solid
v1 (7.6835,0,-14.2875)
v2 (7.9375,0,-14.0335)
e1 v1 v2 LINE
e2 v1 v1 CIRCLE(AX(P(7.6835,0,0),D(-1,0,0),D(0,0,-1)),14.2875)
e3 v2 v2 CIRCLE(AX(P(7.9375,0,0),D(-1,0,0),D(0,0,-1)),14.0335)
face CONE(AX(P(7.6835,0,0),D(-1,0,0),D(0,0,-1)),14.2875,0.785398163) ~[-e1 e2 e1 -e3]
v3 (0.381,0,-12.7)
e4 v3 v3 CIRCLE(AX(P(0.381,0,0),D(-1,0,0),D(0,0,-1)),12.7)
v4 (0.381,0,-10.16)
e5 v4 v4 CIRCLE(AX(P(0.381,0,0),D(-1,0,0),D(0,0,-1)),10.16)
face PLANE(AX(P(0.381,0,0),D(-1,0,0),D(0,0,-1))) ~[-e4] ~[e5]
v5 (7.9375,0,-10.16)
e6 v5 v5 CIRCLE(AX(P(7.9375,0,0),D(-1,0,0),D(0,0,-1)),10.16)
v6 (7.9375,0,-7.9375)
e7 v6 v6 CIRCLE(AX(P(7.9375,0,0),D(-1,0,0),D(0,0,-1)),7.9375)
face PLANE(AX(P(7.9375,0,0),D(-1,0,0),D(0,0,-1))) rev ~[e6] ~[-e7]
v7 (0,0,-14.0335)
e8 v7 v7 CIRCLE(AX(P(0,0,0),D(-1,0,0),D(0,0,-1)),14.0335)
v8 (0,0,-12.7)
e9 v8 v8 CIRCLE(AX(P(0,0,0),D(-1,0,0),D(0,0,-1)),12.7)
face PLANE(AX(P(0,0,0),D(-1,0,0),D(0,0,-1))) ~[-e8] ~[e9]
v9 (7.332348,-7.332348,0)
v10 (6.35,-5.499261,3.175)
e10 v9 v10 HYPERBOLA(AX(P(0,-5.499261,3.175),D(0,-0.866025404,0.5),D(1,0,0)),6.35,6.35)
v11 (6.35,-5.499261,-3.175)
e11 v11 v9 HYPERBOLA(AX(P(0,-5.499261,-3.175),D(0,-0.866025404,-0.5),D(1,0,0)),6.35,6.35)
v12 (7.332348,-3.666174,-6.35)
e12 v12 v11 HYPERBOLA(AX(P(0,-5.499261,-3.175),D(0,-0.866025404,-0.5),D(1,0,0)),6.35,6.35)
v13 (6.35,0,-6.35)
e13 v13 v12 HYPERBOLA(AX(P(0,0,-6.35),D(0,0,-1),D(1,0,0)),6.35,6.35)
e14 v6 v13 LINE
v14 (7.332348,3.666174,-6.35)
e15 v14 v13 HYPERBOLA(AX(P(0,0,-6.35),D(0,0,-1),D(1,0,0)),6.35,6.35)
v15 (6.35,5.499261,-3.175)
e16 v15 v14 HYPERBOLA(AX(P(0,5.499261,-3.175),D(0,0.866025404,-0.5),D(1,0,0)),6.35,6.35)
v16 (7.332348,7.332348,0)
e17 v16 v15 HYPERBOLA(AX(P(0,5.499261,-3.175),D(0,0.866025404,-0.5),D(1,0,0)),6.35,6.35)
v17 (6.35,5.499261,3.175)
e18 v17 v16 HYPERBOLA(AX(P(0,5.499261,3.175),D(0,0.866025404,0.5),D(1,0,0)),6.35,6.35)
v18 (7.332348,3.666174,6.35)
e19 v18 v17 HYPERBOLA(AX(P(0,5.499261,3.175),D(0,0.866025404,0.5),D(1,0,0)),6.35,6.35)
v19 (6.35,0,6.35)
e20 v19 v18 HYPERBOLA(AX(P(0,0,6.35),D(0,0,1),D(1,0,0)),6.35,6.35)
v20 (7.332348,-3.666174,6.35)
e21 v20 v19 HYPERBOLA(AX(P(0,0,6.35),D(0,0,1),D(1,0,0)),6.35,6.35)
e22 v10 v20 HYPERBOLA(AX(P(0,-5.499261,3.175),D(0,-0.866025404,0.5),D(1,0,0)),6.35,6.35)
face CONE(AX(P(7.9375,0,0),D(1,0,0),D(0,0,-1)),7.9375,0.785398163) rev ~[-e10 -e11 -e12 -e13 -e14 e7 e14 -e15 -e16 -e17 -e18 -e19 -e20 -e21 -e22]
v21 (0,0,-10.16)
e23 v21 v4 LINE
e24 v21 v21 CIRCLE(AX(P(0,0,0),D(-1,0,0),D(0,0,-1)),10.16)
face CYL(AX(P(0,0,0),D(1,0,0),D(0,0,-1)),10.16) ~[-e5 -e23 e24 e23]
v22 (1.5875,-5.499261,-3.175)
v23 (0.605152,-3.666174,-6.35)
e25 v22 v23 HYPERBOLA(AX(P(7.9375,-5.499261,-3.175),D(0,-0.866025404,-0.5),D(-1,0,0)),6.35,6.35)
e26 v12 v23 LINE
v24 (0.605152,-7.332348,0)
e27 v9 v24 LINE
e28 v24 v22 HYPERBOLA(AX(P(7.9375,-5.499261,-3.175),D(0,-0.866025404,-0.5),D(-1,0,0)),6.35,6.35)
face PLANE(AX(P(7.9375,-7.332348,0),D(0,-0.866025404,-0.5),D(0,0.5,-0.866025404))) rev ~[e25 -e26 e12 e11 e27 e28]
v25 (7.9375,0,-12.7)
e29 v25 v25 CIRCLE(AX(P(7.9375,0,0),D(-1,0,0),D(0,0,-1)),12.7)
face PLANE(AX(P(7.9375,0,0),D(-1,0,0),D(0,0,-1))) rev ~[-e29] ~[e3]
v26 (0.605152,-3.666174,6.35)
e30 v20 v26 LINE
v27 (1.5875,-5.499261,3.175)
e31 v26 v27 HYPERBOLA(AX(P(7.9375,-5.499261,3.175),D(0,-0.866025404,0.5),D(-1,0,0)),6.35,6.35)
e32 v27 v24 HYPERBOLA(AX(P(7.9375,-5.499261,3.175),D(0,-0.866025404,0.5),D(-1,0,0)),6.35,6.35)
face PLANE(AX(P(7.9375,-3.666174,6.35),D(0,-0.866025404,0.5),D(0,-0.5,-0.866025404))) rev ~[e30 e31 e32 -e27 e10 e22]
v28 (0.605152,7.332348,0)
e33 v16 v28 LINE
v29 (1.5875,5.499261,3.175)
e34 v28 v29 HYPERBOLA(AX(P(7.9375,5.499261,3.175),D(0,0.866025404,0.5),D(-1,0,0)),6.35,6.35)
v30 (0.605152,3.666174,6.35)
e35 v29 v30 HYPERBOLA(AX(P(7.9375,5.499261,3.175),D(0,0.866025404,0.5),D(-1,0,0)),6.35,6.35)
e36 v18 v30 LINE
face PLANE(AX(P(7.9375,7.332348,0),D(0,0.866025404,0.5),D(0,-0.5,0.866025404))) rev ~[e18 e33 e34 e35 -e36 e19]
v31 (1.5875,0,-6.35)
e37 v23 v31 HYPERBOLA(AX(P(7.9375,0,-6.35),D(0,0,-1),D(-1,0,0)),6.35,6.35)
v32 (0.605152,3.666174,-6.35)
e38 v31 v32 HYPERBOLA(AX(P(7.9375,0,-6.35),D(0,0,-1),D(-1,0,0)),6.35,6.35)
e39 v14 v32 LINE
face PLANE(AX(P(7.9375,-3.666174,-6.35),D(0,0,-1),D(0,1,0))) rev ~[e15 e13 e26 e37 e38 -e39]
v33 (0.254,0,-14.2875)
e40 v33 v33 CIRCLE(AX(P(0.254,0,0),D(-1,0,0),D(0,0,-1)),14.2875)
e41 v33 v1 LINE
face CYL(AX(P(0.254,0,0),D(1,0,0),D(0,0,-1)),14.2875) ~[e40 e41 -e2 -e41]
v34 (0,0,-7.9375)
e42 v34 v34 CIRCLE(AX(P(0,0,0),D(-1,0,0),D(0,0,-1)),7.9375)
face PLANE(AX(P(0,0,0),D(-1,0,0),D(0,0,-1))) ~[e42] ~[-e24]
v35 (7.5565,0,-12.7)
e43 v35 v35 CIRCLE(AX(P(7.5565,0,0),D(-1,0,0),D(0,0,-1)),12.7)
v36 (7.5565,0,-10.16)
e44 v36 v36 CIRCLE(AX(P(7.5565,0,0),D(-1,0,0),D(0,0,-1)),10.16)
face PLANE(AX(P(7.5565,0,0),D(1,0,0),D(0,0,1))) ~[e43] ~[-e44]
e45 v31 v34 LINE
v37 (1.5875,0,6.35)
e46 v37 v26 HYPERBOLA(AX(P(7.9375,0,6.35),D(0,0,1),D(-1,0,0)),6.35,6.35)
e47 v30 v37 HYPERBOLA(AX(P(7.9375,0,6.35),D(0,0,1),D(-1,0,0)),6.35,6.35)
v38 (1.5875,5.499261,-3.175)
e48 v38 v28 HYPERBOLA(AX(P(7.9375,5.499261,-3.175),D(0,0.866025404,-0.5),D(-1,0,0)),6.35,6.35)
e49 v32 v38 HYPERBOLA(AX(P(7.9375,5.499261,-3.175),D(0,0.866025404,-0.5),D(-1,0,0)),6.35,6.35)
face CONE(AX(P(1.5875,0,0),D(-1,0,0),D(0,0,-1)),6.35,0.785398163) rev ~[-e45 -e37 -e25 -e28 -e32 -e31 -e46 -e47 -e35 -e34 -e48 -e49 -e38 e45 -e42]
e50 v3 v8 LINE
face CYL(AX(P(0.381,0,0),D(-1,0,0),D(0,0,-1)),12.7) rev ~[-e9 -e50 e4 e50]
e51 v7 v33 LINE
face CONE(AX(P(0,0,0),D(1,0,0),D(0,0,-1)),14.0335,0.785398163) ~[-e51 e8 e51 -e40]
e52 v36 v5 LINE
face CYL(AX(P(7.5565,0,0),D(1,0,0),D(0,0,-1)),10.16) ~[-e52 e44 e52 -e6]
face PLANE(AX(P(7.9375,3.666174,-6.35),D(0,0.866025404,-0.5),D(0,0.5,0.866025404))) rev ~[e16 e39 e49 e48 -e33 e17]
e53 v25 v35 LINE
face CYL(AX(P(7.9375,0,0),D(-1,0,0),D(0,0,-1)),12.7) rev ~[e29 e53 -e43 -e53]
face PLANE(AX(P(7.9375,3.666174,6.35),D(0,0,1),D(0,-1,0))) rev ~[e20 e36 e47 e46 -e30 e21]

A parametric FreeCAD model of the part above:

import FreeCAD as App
import Part
import Sketcher
from FreeCAD import Vector
Q = App.Units.Quantity

doc = App.newDocument("Part")
params = doc.addObject("Spreadsheet::Sheet", "Params")
for row, (alias, value) in enumerate([
    ("sketch1_height", "0.1 in"),
    ("sketch1_width", "0.015 in"),
    ("sketch1_width2", "0.1875 in"),
    ("revolution_angle", "360 deg"),
], start=1):
    params.set(f"A{row}", alias)
    params.set(f"B{row}", "=" + value)
    params.setAlias(f"B{row}", alias)

body = doc.addObject("PartDesign::Body", "Body")

sketch1 = body.newObject("Sketcher::SketchObject", "Sketch")
sketch1.AttachmentSupport = (doc.getObject("XY_Plane"), [""])
sketch1.MapMode = "FlatFace"
sketch1.addGeometry([
    Part.LineSegment(Vector(7.6835, 14.2875, 0), Vector(0.254, 14.2875, 0)),
    Part.LineSegment(Vector(0.254, 14.2875, 0), Vector(0, 14.0335, 0)),
    Part.LineSegment(Vector(0, 14.0335, 0), Vector(0, 12.7, 0)),
    Part.LineSegment(Vector(0, 12.7, 0), Vector(0.381, 12.7, 0)),
    Part.LineSegment(Vector(0.381, 12.7, 0), Vector(0.381, 10.16, 0)),
    Part.LineSegment(Vector(0.381, 10.16, 0), Vector(0, 10.16, 0)),
    Part.LineSegment(Vector(0, 10.16, 0), Vector(0, 7.9375, 0)),
    Part.LineSegment(Vector(0, 7.9375, 0), Vector(1.5875, 6.35, 0)),
    Part.LineSegment(Vector(1.5875, 6.35, 0), Vector(6.35, 6.35, 0)),
    Part.LineSegment(Vector(6.35, 6.35, 0), Vector(7.9375, 7.9375, 0)),
    Part.LineSegment(Vector(7.9375, 7.9375, 0), Vector(7.9375, 10.16, 0)),
    Part.LineSegment(Vector(7.9375, 10.16, 0), Vector(7.5565, 10.16, 0)),
    Part.LineSegment(Vector(7.5565, 10.16, 0), Vector(7.5565, 12.7, 0)),
    Part.LineSegment(Vector(7.5565, 12.7, 0), Vector(7.9375, 12.7, 0)),
    Part.LineSegment(Vector(7.9375, 12.7, 0), Vector(7.9375, 14.0335, 0)),
    Part.LineSegment(Vector(7.9375, 14.0335, 0), Vector(7.6835, 14.2875, 0)),
], False)
sketch1.addConstraint([
    Sketcher.Constraint("Coincident", 0, 2, 1, 1),
    Sketcher.Constraint("Coincident", 1, 2, 2, 1),
    Sketcher.Constraint("Coincident", 2, 2, 3, 1),
    Sketcher.Constraint("Coincident", 3, 2, 4, 1),
    Sketcher.Constraint("Coincident", 4, 2, 5, 1),
    Sketcher.Constraint("Coincident", 5, 2, 6, 1),
    Sketcher.Constraint("Coincident", 6, 2, 7, 1),
    Sketcher.Constraint("Coincident", 7, 2, 8, 1),
    Sketcher.Constraint("Coincident", 8, 2, 9, 1),
    Sketcher.Constraint("Coincident", 9, 2, 10, 1),
    Sketcher.Constraint("Coincident", 10, 2, 11, 1),
    Sketcher.Constraint("Coincident", 11, 2, 12, 1),
    Sketcher.Constraint("Coincident", 12, 2, 13, 1),
    Sketcher.Constraint("Coincident", 13, 2, 14, 1),
    Sketcher.Constraint("Coincident", 14, 2, 15, 1),
    Sketcher.Constraint("Coincident", 15, 2, 0, 1),
    Sketcher.Constraint("Horizontal", 0),
    Sketcher.Constraint("Vertical", 2),
    Sketcher.Constraint("Horizontal", 3),
    Sketcher.Constraint("Vertical", 4),
    Sketcher.Constraint("Horizontal", 5),
    Sketcher.Constraint("Vertical", 6),
    Sketcher.Constraint("Horizontal", 8),
    Sketcher.Constraint("Vertical", 10),
    Sketcher.Constraint("Horizontal", 11),
    Sketcher.Constraint("Vertical", 12),
    Sketcher.Constraint("Horizontal", 13),
    Sketcher.Constraint("Vertical", 14),
    Sketcher.Constraint("PointOnObject", 1, 2, -2),
    Sketcher.Constraint("PointOnObject", 5, 2, -2),
    Sketcher.Constraint("Perpendicular", 1, 7),
    Sketcher.Constraint("Perpendicular", 7, 9),
    Sketcher.Constraint("Perpendicular", 9, 15),
    Sketcher.Constraint("Horizontal", 6, 2, 9, 2),
    Sketcher.Constraint("Horizontal", 5, 2, 10, 2),
    Sketcher.Constraint("Horizontal", 3, 2, 12, 2),
    Sketcher.Constraint("Horizontal", 1, 2, 14, 2),
    Sketcher.Constraint("Vertical", 10, 2, 13, 2),
    Sketcher.Constraint("Equal", 5, 11),
    Sketcher.Constraint("Equal", 7, 9),
    Sketcher.Constraint("DistanceY", 4, 2, 4, 1, Q("0.1 in")),
    Sketcher.Constraint("DistanceY", -1, 1, 2, 2, Q("0.5 in")),
    Sketcher.Constraint("DistanceX", 3, 1, 3, 2, Q("0.015 in")),
    Sketcher.Constraint("DistanceX", 8, 1, 8, 2, Q("0.1875 in")),
    Sketcher.Constraint("DistanceX", -1, 1, 0, 2, Q("0.01 in")),
    Sketcher.Constraint("DistanceY", -1, 1, 7, 2, Q("0.25 in")),
    Sketcher.Constraint("DistanceX", -1, 1, 8, 2, Q("0.25 in")),
    Sketcher.Constraint("DistanceY", 6, 2, 1, 2, Q("0.24 in")),
])
sketch1.setExpression("Constraints[40]", "Params.sketch1_height")
sketch1.setExpression("Constraints[42]", "Params.sketch1_width")
sketch1.setExpression("Constraints[43]", "Params.sketch1_width2")
revolution = body.newObject("PartDesign::Revolution", "Revolution")
revolution.Profile = sketch1
revolution.ReferenceAxis = (sketch1, ["H_Axis"])
revolution.setExpression("Angle", "Params.revolution_angle")

sketch2 = body.newObject("Sketcher::SketchObject", "Sketch001")
sketch2.AttachmentSupport = (doc.getObject("YZ_Plane"), [""])
sketch2.MapMode = "FlatFace"
sketch2.AttachmentOffset = App.Placement(Vector(0, 0, 0.3125 * 25.4), App.Rotation())
sketch2.addGeometry([
    Part.LineSegment(Vector(7.332348, 0, 0), Vector(3.666174, 6.35, 0)),
    Part.LineSegment(Vector(3.666174, 6.35, 0), Vector(-3.666174, 6.35, 0)),
    Part.LineSegment(Vector(-3.666174, 6.35, 0), Vector(-7.332348, 0, 0)),
    Part.LineSegment(Vector(-7.332348, 0, 0), Vector(-3.666174, -6.35, 0)),
    Part.LineSegment(Vector(-3.666174, -6.35, 0), Vector(3.666174, -6.35, 0)),
    Part.LineSegment(Vector(3.666174, -6.35, 0), Vector(7.332348, 0, 0)),
], False)
sketch2.addConstraint([
    Sketcher.Constraint("Coincident", 0, 2, 1, 1),
    Sketcher.Constraint("Coincident", 1, 2, 2, 1),
    Sketcher.Constraint("Coincident", 2, 2, 3, 1),
    Sketcher.Constraint("Coincident", 3, 2, 4, 1),
    Sketcher.Constraint("Coincident", 4, 2, 5, 1),
    Sketcher.Constraint("Coincident", 5, 2, 0, 1),
    Sketcher.Constraint("Horizontal", 1),
    Sketcher.Constraint("Horizontal", 4),
    Sketcher.Constraint("Symmetric", 0, 2, 3, 2, -1, 1),
    Sketcher.Constraint("Symmetric", 2, 2, 5, 2, -1, 1),
    Sketcher.Constraint("PointOnObject", 2, 2, -1),
    Sketcher.Constraint("Parallel", 2, 5),
    Sketcher.Constraint("Vertical", 1, 2, 3, 2),
    Sketcher.Constraint("Angle", 0, Q("120 deg")),
    Sketcher.Constraint("DistanceY", 3, 2, 1, 2, Q("0.5 in")),
    Sketcher.Constraint("DistanceX", 1, 2, 1, 1, Q("7.332348 mm")),
])
pocket1 = body.newObject("PartDesign::Pocket", "Pocket")
pocket1.Profile = sketch2
pocket1.Type = "ThroughAll"

doc.recompute()
